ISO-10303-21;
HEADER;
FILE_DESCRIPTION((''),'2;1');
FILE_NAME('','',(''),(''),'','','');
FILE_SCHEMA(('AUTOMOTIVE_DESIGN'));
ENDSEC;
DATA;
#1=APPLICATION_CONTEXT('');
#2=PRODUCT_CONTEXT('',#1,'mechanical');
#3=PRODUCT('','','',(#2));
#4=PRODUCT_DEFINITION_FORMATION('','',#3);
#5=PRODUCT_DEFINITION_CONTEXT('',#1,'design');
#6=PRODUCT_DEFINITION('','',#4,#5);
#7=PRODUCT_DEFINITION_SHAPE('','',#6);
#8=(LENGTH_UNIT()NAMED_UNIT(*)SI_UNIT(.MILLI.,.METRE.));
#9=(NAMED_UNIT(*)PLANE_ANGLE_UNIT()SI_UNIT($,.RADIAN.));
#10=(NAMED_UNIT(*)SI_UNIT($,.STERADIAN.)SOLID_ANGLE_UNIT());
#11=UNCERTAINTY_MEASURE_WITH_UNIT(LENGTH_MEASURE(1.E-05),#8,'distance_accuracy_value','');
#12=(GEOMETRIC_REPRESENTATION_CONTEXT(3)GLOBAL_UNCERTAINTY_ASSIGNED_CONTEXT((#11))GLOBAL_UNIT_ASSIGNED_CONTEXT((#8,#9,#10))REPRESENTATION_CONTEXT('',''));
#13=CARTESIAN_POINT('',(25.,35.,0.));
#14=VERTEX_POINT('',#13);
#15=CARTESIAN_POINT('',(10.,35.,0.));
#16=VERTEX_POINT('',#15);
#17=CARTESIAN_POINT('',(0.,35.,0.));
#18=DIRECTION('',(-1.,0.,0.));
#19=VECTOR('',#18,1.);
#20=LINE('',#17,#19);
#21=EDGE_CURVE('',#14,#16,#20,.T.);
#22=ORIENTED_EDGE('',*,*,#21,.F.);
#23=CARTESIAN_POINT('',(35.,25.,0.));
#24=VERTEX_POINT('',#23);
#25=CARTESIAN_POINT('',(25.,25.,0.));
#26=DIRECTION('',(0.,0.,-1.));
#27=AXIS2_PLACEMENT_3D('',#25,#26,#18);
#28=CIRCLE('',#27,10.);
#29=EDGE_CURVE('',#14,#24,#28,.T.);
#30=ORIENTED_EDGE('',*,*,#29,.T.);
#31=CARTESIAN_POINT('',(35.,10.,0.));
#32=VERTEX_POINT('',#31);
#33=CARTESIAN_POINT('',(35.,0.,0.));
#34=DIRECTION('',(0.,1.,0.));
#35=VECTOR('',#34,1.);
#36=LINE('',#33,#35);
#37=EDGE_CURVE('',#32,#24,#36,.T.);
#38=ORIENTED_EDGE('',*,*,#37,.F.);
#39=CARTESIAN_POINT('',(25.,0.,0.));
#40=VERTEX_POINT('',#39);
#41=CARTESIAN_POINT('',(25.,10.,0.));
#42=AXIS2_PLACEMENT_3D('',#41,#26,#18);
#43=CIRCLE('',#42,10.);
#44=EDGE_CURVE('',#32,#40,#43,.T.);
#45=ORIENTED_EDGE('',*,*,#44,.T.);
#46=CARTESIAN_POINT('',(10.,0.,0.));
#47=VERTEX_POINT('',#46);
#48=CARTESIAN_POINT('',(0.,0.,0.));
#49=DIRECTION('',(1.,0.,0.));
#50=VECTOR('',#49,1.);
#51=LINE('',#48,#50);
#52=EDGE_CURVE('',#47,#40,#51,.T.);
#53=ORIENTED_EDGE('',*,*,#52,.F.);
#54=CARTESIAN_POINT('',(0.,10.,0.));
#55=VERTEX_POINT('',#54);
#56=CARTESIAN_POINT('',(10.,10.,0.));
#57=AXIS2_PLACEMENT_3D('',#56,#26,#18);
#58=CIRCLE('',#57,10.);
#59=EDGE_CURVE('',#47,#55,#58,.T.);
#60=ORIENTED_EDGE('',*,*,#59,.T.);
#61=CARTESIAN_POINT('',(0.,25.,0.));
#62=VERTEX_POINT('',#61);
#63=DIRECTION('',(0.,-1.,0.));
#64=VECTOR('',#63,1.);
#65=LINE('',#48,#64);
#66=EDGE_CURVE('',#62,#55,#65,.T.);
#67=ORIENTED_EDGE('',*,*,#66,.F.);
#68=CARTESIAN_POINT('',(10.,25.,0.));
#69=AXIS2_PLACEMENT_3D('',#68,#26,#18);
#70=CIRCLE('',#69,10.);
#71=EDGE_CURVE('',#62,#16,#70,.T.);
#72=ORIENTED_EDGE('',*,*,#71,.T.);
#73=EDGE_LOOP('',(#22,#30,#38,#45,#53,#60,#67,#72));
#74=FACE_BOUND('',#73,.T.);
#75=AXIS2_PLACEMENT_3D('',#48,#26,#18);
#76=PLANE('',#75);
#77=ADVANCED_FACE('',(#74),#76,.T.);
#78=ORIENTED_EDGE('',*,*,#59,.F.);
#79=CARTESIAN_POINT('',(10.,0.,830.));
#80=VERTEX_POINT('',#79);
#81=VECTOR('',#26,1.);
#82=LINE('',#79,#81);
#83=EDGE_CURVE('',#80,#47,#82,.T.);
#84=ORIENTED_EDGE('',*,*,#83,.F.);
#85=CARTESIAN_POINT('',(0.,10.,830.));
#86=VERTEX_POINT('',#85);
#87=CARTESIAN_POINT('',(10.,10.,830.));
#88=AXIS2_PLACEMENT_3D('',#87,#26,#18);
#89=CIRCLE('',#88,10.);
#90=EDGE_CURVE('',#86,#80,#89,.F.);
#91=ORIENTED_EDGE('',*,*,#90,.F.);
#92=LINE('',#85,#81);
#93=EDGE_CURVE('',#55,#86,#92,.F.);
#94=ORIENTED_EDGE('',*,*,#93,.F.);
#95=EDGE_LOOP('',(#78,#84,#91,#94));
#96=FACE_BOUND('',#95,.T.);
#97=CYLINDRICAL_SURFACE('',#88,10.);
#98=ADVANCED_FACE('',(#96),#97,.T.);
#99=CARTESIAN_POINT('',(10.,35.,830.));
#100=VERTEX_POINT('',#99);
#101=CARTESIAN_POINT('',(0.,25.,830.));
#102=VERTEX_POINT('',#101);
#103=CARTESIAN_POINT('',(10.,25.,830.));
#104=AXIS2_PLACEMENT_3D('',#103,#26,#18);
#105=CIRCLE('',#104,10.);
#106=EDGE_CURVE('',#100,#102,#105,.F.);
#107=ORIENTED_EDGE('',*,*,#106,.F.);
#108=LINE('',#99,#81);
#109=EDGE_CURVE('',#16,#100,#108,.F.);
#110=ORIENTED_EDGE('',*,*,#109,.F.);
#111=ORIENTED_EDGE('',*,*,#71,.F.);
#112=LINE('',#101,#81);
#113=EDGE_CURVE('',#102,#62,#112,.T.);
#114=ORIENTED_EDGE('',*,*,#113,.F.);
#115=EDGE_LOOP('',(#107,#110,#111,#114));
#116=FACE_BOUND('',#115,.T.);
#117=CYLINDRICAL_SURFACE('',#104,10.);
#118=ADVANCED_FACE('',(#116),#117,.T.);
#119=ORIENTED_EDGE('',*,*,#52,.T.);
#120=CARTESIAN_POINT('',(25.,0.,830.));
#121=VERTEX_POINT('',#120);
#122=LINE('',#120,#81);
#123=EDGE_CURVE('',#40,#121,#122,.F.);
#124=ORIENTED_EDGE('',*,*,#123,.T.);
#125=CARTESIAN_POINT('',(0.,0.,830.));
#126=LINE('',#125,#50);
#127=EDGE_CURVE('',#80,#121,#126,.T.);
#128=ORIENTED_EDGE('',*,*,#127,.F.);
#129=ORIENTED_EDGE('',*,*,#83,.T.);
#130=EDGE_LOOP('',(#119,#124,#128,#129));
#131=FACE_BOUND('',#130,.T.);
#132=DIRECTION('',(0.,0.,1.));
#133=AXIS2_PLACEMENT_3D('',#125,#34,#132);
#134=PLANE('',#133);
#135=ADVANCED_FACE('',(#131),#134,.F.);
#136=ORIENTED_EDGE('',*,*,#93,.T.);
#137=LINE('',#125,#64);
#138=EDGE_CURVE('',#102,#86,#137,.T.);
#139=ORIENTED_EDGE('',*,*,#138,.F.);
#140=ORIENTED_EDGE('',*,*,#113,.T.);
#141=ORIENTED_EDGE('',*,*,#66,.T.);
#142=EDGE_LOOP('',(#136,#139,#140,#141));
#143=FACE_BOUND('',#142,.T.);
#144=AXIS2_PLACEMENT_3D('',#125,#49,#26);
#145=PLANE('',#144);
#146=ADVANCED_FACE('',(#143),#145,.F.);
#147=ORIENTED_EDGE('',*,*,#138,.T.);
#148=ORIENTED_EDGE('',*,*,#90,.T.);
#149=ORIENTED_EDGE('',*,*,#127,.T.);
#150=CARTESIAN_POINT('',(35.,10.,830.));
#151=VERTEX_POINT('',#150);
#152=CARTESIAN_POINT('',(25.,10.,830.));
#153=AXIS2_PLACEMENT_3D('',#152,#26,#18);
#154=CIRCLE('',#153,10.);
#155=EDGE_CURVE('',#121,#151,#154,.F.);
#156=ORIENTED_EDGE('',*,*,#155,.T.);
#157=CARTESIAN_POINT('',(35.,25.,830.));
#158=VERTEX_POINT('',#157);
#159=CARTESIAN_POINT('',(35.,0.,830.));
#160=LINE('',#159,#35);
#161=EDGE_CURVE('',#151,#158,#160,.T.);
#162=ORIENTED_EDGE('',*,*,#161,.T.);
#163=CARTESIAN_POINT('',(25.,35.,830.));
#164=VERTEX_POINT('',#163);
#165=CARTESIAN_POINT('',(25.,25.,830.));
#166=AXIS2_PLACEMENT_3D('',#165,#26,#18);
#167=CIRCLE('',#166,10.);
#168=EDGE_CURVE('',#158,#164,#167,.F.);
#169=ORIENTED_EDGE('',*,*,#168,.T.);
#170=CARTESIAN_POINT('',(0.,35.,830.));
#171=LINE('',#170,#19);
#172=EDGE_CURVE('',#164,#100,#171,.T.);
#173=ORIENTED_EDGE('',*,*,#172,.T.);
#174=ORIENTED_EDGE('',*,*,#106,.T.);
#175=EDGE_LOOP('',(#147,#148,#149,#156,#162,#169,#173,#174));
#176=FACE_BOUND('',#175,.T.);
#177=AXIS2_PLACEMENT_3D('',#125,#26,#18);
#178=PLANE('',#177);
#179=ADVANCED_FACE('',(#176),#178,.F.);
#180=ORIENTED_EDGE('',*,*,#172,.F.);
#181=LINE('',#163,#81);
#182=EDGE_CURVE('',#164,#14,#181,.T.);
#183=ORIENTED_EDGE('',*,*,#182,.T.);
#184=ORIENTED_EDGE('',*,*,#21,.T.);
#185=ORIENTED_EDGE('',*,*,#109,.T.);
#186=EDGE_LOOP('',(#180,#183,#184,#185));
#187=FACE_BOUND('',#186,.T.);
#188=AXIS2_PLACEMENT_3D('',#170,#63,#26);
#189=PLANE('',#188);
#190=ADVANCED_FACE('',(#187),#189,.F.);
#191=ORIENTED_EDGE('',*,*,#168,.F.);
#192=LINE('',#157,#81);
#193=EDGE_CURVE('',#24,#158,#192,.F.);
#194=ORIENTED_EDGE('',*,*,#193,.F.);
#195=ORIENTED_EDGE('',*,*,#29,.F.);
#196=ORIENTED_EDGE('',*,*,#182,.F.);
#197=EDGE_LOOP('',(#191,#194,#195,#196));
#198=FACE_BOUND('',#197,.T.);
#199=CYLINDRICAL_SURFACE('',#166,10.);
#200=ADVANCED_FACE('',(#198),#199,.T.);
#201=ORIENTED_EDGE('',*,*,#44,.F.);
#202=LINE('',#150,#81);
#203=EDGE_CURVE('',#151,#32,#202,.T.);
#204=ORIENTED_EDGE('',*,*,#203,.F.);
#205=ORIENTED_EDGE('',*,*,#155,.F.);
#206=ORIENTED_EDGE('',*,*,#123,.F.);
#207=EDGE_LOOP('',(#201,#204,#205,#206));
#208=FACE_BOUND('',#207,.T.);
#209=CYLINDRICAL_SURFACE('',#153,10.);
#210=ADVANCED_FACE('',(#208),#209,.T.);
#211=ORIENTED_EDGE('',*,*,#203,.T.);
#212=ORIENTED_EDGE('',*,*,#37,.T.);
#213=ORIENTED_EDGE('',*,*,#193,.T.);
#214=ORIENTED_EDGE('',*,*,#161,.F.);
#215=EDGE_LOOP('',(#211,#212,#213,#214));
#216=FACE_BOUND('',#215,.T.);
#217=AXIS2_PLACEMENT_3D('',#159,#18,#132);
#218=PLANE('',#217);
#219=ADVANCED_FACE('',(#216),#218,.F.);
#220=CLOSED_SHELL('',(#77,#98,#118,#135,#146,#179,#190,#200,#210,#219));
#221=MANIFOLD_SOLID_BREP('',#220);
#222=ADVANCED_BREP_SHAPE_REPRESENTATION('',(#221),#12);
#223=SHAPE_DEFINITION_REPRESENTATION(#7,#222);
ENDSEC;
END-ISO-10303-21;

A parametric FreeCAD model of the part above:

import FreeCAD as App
import Part
import Sketcher
from FreeCAD import Vector


def edges_at(feature, points):
    """Names of the edges that pass closest to the given points."""
    edges = feature.Shape.Edges
    near = lambda p: min(range(len(edges)), key=lambda i: edges[i].distToShape(Part.Vertex(*p))[0])
    return sorted({f"Edge{near(p) + 1}" for p in points})


def add_polygon(sketch, points):
    """Adds a closed chain of lines whose ends are joined by coincident constraints."""
    first, n = sketch.GeometryCount, len(points)
    for a, b in zip(points, points[1:] + points[:1]):
        sketch.addGeometry(Part.LineSegment(App.Vector(*a, 0), App.Vector(*b, 0)), False)
    for i in range(n):
        sketch.addConstraint(Sketcher.Constraint("Coincident", first + i, 2, first + (i + 1) % n, 1))

doc = App.newDocument("Part")
params = doc.addObject("Spreadsheet::Sheet", "Params")
for row, (alias, value) in enumerate([
    ("sketch1_width", "35 mm"),
    ("pad1_length", "830 mm"),
    ("fillet_radius", "10 mm"),
], start=1):
    params.set(f"A{row}", alias)
    params.set(f"B{row}", "=" + value)
    params.setAlias(f"B{row}", alias)

body = doc.addObject("PartDesign::Body", "Body")

# Sketch on XY plane
sketch1 = doc.addObject("Sketcher::SketchObject", "Sketch")
body.addObject(sketch1)
sketch1.AttachmentSupport = (doc.XY_Plane, [""])
sketch1.MapMode = "FlatFace"
add_polygon(sketch1, [(0, 35), (0, 0), (35, 0), (35, 35)])  # lines 0-3
sketch1.addConstraint([
    Sketcher.Constraint("Vertical", 0),
    Sketcher.Constraint("Horizontal", 1),
    Sketcher.Constraint("Vertical", 2),
    Sketcher.Constraint("Horizontal", 3),
    Sketcher.Constraint("Coincident", 0, 2, -1, 1),
    Sketcher.Constraint("Equal", 3, 0),
    Sketcher.Constraint("DistanceX", 1, 1, 1, 2, 35.0),
])
sketch1.setExpression("Constraints[10]", "Params.sketch1_width")
pad1 = doc.addObject("PartDesign::Pad", "Pad")
body.addObject(pad1)
pad1.Profile = sketch1
pad1.setExpression("Length", "Params.pad1_length")
doc.recompute()

fillet = doc.addObject("PartDesign::Fillet", "Fillet")
body.addObject(fillet)
fillet.Base = (pad1, edges_at(pad1, [
    (0, 35, 415),
    (35, 35, 415),
    (35, 0, 415),
    (0, 0, 415),
]))
fillet.setExpression("Radius", "Params.fillet_radius")

doc.recompute()
